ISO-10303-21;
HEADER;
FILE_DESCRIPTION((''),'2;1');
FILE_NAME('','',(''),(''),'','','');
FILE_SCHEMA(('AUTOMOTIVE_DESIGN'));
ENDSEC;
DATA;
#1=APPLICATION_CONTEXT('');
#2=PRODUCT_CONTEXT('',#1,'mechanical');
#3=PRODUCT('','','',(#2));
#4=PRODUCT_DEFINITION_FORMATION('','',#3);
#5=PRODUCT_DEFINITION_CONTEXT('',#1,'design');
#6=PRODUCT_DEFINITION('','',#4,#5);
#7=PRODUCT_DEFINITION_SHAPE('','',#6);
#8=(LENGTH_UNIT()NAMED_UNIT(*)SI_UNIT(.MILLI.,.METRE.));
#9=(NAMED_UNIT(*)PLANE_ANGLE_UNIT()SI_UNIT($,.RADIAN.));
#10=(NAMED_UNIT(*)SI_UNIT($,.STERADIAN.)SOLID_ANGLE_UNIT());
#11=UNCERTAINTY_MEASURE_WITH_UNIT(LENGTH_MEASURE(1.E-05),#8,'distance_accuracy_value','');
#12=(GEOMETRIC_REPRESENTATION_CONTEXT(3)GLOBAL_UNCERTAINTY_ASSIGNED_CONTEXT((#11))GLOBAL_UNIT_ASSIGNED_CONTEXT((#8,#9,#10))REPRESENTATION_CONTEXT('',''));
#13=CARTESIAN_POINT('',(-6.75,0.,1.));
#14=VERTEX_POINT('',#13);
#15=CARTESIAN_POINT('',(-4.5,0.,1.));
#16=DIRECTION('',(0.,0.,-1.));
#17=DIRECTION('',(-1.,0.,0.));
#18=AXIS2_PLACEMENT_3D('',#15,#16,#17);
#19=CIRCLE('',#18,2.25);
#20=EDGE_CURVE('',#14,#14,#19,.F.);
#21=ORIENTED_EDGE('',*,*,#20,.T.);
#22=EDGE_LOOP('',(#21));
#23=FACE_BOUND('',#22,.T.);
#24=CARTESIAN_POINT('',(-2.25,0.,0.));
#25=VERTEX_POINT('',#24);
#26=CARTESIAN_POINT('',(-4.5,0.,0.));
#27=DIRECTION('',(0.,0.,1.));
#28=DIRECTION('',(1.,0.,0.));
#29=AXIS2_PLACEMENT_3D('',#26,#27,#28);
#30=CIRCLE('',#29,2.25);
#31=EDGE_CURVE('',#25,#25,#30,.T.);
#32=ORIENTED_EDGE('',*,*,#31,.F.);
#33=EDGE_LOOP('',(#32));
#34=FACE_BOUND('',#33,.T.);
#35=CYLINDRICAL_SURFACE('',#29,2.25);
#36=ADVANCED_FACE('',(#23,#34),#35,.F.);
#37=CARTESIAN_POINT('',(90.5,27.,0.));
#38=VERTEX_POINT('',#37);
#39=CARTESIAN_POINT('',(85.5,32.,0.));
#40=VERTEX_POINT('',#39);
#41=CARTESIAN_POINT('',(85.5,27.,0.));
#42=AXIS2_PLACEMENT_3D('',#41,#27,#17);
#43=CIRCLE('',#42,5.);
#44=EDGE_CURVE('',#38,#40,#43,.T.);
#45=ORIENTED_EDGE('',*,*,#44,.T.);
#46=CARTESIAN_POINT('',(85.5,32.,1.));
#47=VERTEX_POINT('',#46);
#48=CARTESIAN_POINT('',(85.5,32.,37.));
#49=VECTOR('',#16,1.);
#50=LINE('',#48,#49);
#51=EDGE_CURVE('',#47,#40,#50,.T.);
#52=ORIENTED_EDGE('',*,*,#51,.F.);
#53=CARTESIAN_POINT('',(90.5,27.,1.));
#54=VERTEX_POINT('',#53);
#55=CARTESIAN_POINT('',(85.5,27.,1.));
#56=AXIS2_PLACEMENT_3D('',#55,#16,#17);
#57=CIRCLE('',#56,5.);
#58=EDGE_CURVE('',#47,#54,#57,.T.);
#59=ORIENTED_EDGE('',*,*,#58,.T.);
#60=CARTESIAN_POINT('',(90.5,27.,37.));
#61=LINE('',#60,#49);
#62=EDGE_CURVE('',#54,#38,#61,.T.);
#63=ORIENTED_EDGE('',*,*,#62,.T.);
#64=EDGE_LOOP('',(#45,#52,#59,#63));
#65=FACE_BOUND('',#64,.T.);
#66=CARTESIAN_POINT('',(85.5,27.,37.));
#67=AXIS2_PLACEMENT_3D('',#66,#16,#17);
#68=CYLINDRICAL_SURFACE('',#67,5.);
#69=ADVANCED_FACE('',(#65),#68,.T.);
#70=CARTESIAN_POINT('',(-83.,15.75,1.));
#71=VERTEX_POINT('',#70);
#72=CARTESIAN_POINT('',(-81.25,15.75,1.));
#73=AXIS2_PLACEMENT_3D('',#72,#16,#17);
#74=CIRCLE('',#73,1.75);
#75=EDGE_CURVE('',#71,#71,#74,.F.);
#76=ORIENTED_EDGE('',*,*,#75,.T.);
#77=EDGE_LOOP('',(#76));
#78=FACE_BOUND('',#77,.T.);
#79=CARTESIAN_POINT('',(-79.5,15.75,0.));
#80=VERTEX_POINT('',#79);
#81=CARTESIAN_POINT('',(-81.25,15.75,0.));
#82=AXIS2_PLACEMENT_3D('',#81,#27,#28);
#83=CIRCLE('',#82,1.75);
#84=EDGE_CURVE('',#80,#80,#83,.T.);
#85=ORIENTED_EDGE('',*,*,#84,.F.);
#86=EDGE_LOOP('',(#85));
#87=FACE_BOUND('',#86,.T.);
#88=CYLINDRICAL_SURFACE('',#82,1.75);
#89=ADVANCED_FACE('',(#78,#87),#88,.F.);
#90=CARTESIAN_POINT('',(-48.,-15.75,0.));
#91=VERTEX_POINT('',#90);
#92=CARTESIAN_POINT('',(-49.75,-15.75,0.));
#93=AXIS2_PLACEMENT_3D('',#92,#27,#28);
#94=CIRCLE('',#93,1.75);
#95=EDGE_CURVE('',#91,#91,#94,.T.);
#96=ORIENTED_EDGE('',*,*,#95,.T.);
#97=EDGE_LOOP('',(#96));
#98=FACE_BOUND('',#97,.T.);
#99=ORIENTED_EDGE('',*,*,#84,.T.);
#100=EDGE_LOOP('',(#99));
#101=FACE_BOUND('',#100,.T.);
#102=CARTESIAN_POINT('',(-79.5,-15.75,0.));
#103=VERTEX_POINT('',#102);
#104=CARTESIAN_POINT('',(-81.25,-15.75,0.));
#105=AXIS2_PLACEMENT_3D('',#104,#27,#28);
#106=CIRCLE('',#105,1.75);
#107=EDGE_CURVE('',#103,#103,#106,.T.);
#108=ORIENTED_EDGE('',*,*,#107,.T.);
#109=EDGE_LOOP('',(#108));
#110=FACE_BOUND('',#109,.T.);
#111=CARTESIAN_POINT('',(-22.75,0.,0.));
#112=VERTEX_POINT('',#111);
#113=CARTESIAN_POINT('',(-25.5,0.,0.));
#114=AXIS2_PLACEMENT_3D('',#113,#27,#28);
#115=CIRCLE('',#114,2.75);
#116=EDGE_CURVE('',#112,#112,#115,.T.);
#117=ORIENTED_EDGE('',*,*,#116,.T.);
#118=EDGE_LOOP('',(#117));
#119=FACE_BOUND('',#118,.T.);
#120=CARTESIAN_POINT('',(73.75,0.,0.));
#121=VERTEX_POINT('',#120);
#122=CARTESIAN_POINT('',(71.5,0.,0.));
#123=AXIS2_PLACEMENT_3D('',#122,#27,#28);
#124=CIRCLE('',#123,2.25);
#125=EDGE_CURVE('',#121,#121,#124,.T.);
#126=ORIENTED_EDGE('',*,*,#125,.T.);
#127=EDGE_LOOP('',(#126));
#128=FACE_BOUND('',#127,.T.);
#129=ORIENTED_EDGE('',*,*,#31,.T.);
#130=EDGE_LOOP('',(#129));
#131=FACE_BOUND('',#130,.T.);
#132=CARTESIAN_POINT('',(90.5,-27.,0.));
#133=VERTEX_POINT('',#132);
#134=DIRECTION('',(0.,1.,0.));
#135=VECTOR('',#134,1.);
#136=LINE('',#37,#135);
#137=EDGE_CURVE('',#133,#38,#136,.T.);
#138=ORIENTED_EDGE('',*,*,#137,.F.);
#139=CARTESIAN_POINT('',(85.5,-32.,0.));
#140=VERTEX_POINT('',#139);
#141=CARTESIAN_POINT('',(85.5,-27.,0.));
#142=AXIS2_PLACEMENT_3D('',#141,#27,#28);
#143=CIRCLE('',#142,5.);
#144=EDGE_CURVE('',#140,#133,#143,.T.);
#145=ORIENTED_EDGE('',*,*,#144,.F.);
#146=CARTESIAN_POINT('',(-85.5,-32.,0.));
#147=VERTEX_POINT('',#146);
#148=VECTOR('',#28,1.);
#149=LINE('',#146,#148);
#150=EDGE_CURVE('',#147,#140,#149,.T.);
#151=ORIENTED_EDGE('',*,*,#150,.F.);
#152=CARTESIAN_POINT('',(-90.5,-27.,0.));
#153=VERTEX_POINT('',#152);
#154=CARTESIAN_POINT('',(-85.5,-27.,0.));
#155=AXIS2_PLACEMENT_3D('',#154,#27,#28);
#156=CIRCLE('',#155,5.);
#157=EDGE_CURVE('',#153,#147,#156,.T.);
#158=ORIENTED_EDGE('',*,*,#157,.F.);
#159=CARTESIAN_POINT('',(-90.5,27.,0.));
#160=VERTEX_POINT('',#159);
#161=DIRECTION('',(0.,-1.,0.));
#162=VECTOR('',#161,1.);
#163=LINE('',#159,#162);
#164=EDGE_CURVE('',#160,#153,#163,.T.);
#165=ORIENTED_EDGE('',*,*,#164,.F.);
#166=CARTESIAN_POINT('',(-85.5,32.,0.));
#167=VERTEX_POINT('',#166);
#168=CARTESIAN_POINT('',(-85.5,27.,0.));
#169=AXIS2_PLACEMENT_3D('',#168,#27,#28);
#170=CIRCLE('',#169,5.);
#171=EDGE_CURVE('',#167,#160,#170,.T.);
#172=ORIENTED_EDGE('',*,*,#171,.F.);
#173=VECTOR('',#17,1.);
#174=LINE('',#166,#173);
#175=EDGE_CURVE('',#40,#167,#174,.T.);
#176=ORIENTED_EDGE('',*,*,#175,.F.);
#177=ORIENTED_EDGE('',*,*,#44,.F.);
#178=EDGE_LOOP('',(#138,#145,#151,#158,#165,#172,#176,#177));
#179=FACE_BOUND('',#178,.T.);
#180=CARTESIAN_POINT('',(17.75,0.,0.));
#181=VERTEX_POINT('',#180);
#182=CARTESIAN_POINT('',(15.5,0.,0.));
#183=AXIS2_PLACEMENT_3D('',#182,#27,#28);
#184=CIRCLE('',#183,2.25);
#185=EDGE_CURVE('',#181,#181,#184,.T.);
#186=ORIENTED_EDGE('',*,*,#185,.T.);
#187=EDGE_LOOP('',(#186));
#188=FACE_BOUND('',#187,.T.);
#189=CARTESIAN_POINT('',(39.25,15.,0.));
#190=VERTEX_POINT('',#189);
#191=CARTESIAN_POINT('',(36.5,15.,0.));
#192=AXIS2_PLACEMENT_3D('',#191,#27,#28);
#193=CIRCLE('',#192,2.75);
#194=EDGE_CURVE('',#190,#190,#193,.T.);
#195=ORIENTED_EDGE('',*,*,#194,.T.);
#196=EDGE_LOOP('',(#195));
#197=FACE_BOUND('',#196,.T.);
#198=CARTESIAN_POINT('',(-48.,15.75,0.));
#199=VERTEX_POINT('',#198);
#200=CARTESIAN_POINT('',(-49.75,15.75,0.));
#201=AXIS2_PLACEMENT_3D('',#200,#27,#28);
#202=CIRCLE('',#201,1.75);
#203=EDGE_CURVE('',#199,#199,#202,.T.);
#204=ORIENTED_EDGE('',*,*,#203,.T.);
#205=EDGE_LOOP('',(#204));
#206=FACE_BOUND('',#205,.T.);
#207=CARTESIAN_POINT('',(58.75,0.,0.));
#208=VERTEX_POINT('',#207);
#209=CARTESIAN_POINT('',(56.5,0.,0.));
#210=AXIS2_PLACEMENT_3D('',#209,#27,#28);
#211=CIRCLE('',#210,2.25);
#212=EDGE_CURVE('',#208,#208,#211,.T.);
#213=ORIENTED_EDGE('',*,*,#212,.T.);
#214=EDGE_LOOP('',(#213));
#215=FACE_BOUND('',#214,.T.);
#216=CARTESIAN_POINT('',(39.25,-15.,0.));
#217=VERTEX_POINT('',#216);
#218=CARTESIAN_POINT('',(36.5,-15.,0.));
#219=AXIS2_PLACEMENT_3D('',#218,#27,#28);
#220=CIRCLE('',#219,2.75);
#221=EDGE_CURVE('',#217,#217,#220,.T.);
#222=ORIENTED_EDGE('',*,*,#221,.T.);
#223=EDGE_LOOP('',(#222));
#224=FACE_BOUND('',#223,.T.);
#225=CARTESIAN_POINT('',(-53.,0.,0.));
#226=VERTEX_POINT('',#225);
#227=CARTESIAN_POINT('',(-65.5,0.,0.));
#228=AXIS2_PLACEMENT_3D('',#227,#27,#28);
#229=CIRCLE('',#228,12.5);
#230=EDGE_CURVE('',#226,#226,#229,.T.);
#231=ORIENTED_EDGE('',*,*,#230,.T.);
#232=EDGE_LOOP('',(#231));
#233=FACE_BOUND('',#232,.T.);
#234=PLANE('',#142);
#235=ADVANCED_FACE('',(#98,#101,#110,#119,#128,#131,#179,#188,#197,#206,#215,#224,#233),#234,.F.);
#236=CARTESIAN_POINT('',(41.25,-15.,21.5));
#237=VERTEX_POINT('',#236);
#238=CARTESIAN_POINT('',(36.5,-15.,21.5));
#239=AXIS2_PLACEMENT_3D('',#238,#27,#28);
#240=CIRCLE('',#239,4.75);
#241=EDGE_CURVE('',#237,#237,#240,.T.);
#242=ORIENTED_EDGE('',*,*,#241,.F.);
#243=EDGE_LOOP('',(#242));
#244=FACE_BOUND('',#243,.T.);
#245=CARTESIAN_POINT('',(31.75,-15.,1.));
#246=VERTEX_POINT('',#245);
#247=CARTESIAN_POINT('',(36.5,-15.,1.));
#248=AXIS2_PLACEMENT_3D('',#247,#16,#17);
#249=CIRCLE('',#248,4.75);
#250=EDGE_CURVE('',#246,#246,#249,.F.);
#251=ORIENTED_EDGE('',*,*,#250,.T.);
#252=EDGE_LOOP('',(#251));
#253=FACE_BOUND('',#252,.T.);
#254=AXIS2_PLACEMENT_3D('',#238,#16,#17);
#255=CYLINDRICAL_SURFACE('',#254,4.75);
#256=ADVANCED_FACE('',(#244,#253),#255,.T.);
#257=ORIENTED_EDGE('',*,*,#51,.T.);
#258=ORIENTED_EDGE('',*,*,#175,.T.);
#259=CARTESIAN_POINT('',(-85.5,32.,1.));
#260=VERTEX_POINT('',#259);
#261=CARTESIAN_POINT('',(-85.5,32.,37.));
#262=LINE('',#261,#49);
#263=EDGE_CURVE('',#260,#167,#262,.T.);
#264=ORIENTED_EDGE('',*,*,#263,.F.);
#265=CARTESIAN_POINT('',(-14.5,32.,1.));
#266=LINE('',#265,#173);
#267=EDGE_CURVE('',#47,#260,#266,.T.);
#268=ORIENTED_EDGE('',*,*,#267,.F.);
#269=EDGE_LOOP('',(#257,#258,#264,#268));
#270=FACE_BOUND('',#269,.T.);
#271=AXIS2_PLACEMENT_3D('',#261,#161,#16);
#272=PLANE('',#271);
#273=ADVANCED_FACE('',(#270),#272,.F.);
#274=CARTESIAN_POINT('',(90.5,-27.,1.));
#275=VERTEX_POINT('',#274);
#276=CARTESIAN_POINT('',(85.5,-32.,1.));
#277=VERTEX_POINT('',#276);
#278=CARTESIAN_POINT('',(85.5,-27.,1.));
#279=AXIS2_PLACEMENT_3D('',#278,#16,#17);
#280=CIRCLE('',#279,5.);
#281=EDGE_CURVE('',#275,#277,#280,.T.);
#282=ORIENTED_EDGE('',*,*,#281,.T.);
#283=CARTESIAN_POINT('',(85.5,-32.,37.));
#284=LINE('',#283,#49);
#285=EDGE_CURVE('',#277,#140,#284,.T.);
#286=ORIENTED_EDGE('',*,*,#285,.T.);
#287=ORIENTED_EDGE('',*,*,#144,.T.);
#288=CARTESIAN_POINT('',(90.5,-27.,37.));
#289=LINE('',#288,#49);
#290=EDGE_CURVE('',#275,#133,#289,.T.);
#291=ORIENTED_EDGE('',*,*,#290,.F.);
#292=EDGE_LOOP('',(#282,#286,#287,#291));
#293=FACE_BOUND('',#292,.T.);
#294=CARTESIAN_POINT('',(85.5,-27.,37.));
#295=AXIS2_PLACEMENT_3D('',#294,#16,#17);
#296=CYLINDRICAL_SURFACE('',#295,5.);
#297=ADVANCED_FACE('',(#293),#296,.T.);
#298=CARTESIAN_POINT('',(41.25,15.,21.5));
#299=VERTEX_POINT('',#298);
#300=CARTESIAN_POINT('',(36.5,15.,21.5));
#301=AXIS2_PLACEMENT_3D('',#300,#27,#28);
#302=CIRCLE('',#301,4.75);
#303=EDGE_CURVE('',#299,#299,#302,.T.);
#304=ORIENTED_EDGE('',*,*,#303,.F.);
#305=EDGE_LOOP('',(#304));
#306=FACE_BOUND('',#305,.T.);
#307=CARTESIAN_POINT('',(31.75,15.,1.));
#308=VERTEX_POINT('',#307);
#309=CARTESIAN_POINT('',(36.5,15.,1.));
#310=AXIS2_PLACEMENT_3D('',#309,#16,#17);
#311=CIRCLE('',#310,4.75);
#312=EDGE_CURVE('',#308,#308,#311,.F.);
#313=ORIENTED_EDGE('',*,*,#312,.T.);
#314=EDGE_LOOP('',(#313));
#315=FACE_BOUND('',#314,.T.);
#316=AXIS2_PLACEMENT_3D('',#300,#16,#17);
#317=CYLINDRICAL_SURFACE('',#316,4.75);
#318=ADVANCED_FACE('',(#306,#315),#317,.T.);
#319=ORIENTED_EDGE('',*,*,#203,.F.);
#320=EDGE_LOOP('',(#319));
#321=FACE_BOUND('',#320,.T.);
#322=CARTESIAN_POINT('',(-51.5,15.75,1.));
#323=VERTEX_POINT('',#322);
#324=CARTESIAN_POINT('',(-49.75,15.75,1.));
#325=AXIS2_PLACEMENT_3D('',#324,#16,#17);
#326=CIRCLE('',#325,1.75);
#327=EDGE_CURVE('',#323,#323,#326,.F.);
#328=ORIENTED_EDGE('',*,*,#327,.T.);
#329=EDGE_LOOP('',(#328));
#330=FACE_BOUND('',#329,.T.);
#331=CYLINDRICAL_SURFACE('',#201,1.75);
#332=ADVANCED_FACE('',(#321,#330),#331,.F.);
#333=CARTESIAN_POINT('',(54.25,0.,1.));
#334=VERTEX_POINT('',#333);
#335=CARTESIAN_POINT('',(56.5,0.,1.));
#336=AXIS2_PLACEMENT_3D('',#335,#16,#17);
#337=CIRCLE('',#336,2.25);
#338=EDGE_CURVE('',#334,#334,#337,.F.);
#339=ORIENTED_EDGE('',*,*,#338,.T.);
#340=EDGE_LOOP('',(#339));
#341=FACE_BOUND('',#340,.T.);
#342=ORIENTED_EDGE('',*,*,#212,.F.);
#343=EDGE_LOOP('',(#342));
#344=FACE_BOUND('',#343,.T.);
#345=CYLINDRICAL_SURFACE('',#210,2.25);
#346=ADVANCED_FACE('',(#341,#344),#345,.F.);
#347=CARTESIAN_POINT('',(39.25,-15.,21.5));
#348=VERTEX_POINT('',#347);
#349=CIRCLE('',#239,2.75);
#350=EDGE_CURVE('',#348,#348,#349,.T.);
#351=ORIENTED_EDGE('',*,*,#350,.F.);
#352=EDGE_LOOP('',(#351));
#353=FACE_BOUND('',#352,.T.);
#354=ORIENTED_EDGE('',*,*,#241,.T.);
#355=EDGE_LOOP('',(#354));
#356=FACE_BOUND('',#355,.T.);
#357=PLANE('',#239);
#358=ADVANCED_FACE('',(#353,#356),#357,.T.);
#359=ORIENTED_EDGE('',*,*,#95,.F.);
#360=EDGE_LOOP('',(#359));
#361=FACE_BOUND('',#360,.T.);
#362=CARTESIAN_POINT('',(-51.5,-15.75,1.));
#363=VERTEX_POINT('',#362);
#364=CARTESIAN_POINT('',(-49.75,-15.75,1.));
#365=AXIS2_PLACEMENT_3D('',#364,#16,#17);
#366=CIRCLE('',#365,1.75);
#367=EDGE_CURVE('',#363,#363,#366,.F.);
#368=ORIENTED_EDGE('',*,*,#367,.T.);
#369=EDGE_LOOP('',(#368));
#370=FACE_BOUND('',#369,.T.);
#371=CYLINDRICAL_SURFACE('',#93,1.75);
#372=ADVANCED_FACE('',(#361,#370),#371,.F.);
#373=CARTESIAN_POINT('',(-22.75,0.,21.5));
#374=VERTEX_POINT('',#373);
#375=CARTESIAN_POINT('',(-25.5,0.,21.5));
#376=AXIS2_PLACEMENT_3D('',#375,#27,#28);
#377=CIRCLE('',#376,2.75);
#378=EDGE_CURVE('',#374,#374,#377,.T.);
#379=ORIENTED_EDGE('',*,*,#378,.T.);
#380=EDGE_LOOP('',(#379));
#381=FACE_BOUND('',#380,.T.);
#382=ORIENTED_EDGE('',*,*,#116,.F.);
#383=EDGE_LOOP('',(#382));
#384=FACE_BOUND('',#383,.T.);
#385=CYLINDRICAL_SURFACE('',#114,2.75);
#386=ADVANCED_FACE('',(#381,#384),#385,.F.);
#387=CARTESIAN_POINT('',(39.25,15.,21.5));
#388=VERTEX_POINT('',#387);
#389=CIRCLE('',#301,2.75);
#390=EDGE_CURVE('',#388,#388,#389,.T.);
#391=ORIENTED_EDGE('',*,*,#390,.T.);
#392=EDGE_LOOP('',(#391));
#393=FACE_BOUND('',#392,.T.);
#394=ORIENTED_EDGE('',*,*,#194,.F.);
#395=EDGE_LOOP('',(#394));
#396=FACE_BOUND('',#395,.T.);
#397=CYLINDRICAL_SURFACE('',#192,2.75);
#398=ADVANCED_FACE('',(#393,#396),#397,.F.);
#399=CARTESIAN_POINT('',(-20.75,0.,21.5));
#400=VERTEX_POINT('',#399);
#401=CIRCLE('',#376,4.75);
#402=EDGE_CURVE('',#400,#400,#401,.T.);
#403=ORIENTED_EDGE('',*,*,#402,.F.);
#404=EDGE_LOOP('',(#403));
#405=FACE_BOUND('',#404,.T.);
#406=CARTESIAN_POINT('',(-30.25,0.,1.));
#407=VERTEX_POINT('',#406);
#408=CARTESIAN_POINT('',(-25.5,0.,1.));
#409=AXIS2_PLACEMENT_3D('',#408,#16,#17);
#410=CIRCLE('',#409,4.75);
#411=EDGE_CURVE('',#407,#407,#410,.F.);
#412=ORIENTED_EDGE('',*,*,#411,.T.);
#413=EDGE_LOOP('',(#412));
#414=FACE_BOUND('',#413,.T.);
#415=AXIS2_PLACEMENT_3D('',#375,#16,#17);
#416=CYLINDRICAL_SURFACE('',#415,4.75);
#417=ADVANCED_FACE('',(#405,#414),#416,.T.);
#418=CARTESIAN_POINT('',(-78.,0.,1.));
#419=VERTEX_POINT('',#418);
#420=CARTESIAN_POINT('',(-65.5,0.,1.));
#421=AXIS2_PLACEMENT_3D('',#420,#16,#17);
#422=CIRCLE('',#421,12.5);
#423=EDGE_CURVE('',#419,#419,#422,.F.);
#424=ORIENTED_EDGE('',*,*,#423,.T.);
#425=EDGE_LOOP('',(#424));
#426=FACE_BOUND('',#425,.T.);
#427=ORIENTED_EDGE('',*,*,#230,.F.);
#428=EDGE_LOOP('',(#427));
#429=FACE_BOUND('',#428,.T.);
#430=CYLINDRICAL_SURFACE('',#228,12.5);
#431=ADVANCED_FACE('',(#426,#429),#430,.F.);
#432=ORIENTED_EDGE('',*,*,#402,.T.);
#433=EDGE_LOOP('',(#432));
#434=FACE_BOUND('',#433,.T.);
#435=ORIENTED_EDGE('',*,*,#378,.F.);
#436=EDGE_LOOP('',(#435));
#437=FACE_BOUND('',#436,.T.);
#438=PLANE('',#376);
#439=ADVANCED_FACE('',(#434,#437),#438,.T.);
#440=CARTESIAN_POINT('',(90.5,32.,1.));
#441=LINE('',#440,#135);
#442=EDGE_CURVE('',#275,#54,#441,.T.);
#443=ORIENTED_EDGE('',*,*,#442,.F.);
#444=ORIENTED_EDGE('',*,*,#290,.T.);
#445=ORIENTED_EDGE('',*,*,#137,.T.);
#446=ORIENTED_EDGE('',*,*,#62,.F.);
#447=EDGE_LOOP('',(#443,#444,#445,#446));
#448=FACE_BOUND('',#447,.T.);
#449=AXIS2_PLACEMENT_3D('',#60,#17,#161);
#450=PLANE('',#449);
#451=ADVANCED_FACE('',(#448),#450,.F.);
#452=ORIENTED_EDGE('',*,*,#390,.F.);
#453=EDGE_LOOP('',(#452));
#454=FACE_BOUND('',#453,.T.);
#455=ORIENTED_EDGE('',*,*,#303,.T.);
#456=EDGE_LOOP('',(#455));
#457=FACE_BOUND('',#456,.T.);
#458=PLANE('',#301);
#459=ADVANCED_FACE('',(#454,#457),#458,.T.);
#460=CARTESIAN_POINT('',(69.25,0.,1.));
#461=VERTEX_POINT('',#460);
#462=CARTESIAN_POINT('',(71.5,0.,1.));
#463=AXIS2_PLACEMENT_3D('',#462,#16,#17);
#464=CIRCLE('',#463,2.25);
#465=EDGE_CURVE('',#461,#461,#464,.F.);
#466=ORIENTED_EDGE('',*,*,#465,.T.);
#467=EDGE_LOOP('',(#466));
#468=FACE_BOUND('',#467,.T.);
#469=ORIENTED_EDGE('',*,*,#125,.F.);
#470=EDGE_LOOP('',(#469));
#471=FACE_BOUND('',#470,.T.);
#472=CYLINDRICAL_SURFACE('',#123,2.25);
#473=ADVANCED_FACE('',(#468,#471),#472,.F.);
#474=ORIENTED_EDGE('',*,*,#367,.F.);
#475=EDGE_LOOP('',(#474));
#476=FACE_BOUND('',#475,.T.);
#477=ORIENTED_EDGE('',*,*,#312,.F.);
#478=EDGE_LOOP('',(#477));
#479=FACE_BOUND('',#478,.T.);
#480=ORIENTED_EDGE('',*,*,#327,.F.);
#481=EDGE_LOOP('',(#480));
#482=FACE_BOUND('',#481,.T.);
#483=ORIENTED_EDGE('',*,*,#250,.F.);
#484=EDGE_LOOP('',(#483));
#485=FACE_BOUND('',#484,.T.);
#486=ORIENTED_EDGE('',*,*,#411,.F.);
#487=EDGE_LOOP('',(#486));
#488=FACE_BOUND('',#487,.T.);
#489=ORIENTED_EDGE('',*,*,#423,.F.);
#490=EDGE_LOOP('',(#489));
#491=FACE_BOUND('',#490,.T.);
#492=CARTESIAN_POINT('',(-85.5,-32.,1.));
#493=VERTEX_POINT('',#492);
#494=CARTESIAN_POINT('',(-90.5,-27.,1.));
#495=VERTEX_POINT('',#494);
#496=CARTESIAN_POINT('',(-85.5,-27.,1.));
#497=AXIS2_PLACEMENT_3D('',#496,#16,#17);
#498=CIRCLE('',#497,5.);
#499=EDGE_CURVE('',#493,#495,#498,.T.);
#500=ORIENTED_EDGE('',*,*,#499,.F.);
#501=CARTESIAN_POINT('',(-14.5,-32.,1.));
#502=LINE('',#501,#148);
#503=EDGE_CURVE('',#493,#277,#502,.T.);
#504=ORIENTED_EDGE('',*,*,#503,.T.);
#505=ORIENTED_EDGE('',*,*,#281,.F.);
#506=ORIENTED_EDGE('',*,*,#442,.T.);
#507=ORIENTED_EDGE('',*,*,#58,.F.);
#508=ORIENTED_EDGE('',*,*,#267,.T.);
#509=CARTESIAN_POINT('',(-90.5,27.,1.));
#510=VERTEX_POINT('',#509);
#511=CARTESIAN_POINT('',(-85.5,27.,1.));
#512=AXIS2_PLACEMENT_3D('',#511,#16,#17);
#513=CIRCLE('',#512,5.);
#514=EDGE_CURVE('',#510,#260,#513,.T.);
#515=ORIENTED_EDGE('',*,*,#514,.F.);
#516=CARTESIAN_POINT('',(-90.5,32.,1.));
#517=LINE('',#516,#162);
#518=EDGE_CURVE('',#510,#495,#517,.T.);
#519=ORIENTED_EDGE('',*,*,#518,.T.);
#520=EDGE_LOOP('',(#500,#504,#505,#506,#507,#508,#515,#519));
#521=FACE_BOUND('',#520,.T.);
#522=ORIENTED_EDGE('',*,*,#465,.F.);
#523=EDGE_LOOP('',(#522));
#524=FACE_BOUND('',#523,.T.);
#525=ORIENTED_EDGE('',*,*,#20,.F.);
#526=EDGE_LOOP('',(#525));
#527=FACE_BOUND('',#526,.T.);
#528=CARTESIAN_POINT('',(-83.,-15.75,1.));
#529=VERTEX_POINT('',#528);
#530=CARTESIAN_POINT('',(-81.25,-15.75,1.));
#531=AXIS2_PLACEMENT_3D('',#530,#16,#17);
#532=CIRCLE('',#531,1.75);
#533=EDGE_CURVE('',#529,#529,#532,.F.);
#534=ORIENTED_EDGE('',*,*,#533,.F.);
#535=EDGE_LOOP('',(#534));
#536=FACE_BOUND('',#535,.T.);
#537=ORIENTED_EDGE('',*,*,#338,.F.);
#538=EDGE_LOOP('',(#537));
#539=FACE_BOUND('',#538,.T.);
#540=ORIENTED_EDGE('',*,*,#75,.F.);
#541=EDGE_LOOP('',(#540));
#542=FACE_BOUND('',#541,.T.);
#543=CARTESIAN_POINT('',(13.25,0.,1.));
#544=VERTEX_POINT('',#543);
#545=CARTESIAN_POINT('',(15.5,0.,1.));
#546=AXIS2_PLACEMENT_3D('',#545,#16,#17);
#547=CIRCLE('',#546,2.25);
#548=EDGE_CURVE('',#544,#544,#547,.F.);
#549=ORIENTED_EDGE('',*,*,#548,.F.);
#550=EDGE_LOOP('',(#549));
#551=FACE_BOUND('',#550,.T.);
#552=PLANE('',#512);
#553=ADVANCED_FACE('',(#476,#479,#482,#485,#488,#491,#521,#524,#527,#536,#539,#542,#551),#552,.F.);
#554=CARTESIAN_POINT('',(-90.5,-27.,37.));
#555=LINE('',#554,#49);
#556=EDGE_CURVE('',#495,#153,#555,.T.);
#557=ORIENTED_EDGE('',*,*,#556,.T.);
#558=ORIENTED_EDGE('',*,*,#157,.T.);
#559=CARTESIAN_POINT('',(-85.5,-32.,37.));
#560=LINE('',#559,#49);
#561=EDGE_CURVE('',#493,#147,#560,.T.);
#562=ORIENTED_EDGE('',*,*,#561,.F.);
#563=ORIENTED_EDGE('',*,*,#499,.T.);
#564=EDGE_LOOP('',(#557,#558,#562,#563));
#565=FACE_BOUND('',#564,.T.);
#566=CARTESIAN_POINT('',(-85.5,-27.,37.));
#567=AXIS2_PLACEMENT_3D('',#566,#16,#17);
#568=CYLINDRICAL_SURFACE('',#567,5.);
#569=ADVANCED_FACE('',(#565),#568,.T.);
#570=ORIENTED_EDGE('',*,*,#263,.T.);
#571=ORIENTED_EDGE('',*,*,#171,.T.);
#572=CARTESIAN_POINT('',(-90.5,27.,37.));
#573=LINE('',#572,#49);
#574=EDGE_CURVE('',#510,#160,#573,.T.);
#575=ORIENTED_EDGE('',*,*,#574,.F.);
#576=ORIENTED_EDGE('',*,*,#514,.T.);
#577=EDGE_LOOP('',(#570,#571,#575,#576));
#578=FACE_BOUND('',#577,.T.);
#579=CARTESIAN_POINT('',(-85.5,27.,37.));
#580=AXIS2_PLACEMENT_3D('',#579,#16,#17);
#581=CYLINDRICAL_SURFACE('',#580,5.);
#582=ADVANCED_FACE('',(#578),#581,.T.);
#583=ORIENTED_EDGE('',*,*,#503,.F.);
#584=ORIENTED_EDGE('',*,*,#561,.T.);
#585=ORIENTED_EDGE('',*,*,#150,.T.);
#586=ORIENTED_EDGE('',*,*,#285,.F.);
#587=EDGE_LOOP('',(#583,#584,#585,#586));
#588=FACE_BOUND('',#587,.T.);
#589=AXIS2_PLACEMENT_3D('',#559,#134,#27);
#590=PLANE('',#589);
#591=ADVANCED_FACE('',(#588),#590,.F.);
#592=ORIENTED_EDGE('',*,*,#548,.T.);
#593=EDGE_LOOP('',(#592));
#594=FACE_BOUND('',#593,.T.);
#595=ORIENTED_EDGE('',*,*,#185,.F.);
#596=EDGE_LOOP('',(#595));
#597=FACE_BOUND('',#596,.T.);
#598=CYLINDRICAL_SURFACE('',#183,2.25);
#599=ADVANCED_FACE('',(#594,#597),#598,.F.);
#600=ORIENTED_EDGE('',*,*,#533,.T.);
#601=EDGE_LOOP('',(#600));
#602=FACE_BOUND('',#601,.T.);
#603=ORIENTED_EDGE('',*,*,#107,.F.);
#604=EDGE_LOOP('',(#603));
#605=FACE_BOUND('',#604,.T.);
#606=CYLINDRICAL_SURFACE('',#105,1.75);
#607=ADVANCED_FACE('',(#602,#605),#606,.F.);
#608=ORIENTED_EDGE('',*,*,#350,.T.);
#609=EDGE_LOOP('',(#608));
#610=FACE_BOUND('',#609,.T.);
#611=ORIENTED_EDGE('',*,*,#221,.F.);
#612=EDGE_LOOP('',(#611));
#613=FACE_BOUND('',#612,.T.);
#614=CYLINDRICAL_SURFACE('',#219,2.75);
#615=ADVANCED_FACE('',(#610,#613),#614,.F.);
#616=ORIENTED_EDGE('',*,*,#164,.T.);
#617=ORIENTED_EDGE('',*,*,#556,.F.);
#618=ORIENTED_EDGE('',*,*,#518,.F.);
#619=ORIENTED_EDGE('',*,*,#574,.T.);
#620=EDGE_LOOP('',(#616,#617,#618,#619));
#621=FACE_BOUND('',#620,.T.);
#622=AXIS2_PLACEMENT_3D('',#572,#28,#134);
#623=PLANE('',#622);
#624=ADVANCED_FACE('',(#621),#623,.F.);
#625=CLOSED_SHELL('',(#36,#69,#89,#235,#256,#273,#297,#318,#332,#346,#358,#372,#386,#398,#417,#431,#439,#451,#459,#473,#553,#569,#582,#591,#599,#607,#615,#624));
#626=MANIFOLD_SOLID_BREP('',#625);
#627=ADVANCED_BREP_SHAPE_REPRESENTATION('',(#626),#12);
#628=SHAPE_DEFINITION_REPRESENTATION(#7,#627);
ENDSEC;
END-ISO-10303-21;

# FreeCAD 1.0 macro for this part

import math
import FreeCAD as App
import Part
import Sketcher

V = App.Vector
Q = App.Units.Quantity


def add_polygon(sketch, points):
    """Adds a closed chain of lines whose ends are joined by coincident constraints."""
    first, n = sketch.GeometryCount, len(points)
    for a, b in zip(points, points[1:] + points[:1]):
        sketch.addGeometry(Part.LineSegment(App.Vector(*a, 0), App.Vector(*b, 0)), False)
    for i in range(n):
        sketch.addConstraint(Sketcher.Constraint("Coincident", first + i, 2, first + (i + 1) % n, 1))

doc = App.newDocument("Part")
body = doc.addObject("PartDesign::Body", "Body")

# Sketch on XY plane
sketch1 = body.newObject("Sketcher::SketchObject", "Sketch")
sketch1.AttachmentSupport = (doc.getObject("XY_Plane"), [""])
sketch1.MapMode = "FlatFace"
sketch1.addGeometry([
    Part.LineSegment(V(86, 32, 0), V(-86, 32, 0)),  # 0
    Part.ArcOfCircle(Part.Circle(V(-86, 27, 0), V(0, 0, 1), 5), math.radians(90), math.radians(180)),  # 1
    Part.LineSegment(V(-90, 27, 0), V(-90, -27, 0)),  # 2
    Part.ArcOfCircle(Part.Circle(V(-86, -27, 0), V(0, 0, 1), 5), math.radians(180), math.radians(270)),  # 3
    Part.LineSegment(V(-86, -32, 0), V(86, -32, 0)),  # 4
    Part.ArcOfCircle(Part.Circle(V(86, -27, 0), V(0, 0, 1), 5), math.radians(-90), math.radians(0)),  # 5
    Part.LineSegment(V(90, -27, 0), V(90, 27, 0)),  # 6
    Part.ArcOfCircle(Part.Circle(V(86, 27, 0), V(0, 0, 1), 5), math.radians(0), math.radians(90)),  # 7
], False)
sketch1.addConstraint([
    Sketcher.Constraint("Tangent", 0, 2, 1, 1),
    Sketcher.Constraint("Tangent", 1, 2, 2, 1),
    Sketcher.Constraint("Tangent", 2, 2, 3, 1),
    Sketcher.Constraint("Tangent", 3, 2, 4, 1),
    Sketcher.Constraint("Tangent", 4, 2, 5, 1),
    Sketcher.Constraint("Tangent", 5, 2, 6, 1),
    Sketcher.Constraint("Tangent", 6, 2, 7, 1),
    Sketcher.Constraint("Tangent", 7, 2, 0, 1),
    Sketcher.Constraint("Horizontal", 0),
    Sketcher.Constraint("Vertical", 2),
    Sketcher.Constraint("Horizontal", 4),
    Sketcher.Constraint("Vertical", 6),
    Sketcher.Constraint("Equal", 1, 3),
    Sketcher.Constraint("Equal", 3, 5),
    Sketcher.Constraint("Equal", 5, 7),
    Sketcher.Constraint("Symmetric", 1, 3, 5, 3, -1, 1),
    Sketcher.Constraint("Radius", 1, Q("5 mm")),
    Sketcher.Constraint("DistanceX", 0, 2, 0, 1, Q("171 mm")),
    Sketcher.Constraint("DistanceY", 2, 2, 2, 1, Q("54 mm")),
])
pad1 = body.newObject("PartDesign::Pad", "Pad")
pad1.Profile = sketch1
pad1.Length = 37

# Sketch on XY plane
sketch2 = body.newObject("Sketcher::SketchObject", "Sketch001")
sketch2.AttachmentSupport = (doc.getObject("XY_Plane"), [""])
sketch2.MapMode = "FlatFace"
sketch2.AttachmentOffset = App.Placement(V(0, 0, 37), App.Rotation())
sketch2.addGeometry([
    Part.Circle(V(-81.2, 15.8, 0), V(0, 0, 1), 1.8),  # 0
    Part.Circle(V(-49.8, 15.8, 0), V(0, 0, 1), 1.8),  # 1
    Part.Circle(V(-81.2, -15.8, 0), V(0, 0, 1), 1.8),  # 2
    Part.Circle(V(-49.8, -15.8, 0), V(0, 0, 1), 1.8),  # 3
    Part.Circle(V(-65.5, 0, 0), V(0, 0, 1), 12.5),  # 4
    Part.Circle(V(36.5, 15, 0), V(0, 0, 1), 2.8),  # 5
    Part.Circle(V(36.5, -15, 0), V(0, 0, 1), 2.8),  # 6
    Part.Circle(V(-25.5, 0, 0), V(0, 0, 1), 2.8),  # 7
    Part.Circle(V(56.5, 0, 0), V(0, 0, 1), 2.2),  # 8
    Part.Circle(V(71.5, 0, 0), V(0, 0, 1), 2.2),  # 9
], False)
sketch2.addConstraint([
    Sketcher.Constraint("Equal", 0, 1),
    Sketcher.Constraint("Equal", 1, 2),
    Sketcher.Constraint("Equal", 2, 3),
    Sketcher.Constraint("Equal", 5, 6),
    Sketcher.Constraint("Equal", 6, 7),
    Sketcher.Constraint("Equal", 8, 9),
    Sketcher.Constraint("Symmetric", 0, 3, 2, 3, -1),
    Sketcher.Constraint("Symmetric", 1, 3, 3, 3, -1),
    Sketcher.Constraint("Symmetric", 5, 3, 6, 3, -1),
    Sketcher.Constraint("PointOnObject", 4, 3, -1),
    Sketcher.Constraint("PointOnObject", 7, 3, -1),
    Sketcher.Constraint("PointOnObject", 8, 3, -1),
    Sketcher.Constraint("PointOnObject", 9, 3, -1),
    Sketcher.Constraint("Horizontal", 0, 3, 1, 3),
    Sketcher.Constraint("Diameter", 4, Q("25 mm")),
    Sketcher.Constraint("Diameter", 0, Q("3.5 mm")),
    Sketcher.Constraint("Diameter", 5, Q("5.5 mm")),
    Sketcher.Constraint("Diameter", 8, Q("4.5 mm")),
    Sketcher.Constraint("DistanceY", -1, 1, 5, 3, Q("15 mm")),
    Sketcher.Constraint("DistanceX", 4, 3, 5, 3, Q("102 mm")),
    Sketcher.Constraint("DistanceX", 4, 3, 7, 3, Q("40 mm")),
    Sketcher.Constraint("DistanceX", 5, 3, 8, 3, Q("20 mm")),
    Sketcher.Constraint("DistanceX", 8, 3, 9, 3, Q("15 mm")),
    Sketcher.Constraint("DistanceX", 4, 3, -1, 1, Q("65.5 mm")),
    Sketcher.Constraint("DistanceX", 0, 3, 1, 3, Q("31.5 mm")),
    Sketcher.Constraint("DistanceY", 2, 3, 0, 3, Q("31.5 mm")),
    Sketcher.Constraint("DistanceX", 0, 3, -1, 1, Q("81.25 mm")),
])
pocket1 = body.newObject("PartDesign::Pocket", "Pocket")
pocket1.Profile = sketch2
pocket1.Type = "ThroughAll"

# Sketch on XY plane
sketch3 = body.newObject("Sketcher::SketchObject", "Sketch002")
sketch3.AttachmentSupport = (doc.getObject("XY_Plane"), [""])
sketch3.MapMode = "FlatFace"
sketch3.AttachmentOffset = App.Placement(V(0, 0, 37), App.Rotation())
sketch3.addGeometry([
    Part.Circle(V(-4.5, 0, 0), V(0, 0, 1), 2.2),
    Part.Circle(V(15.5, 0, 0), V(0, 0, 1), 2.2),
], False)
sketch3.addConstraint([
    Sketcher.Constraint("Equal", 0, 1),
    Sketcher.Constraint("PointOnObject", 0, 3, -1),
    Sketcher.Constraint("PointOnObject", 1, 3, -1),
    Sketcher.Constraint("Diameter", 0, Q("4.5 mm")),
    Sketcher.Constraint("DistanceX", 0, 3, 1, 3, Q("20 mm")),
    Sketcher.Constraint("DistanceX", 0, 3, -1, 1, Q("4.5 mm")),
])
pocket2 = body.newObject("PartDesign::Pocket", "Pocket001")
pocket2.Profile = sketch3
pocket2.Type = "ThroughAll"

# Sketch on XY plane
sketch4 = body.newObject("Sketcher::SketchObject", "Sketch003")
sketch4.AttachmentSupport = (doc.getObject("XY_Plane"), [""])
sketch4.MapMode = "FlatFace"
sketch4.AttachmentOffset = App.Placement(V(0, 0, 37), App.Rotation())
sketch4.addGeometry([
    Part.LineSegment(V(-85.5, -29, 0), V(85.5, -29, 0)),  # 0
    Part.ArcOfCircle(Part.Circle(V(85.5, -27, 0), V(0, 0, 1), 2), math.radians(-90), math.radians(0)),  # 1
    Part.LineSegment(V(87.5, -27, 0), V(87.5, 27, 0)),  # 2
    Part.ArcOfCircle(Part.Circle(V(85.5, 27, 0), V(0, 0, 1), 2), math.radians(0), math.radians(90)),  # 3
    Part.LineSegment(V(85.5, 29, 0), V(-85.5, 29, 0)),  # 4
    Part.ArcOfCircle(Part.Circle(V(-85.5, 27, 0), V(0, 0, 1), 2), math.radians(90), math.radians(180)),  # 5
    Part.LineSegment(V(-87.5, 27, 0), V(-87.5, -27, 0)),  # 6
    Part.ArcOfCircle(Part.Circle(V(-85.5, -27, 0), V(0, 0, 1), 2), math.radians(-180), math.radians(-90)),  # 7
], False)
sketch4.addConstraint([
    Sketcher.Constraint("Tangent", 0, 2, 1, 1),
    Sketcher.Constraint("Tangent", 1, 2, 2, 1),
    Sketcher.Constraint("Tangent", 2, 2, 3, 1),
    Sketcher.Constraint("Tangent", 3, 2, 4, 1),
    Sketcher.Constraint("Tangent", 4, 2, 5, 1),
    Sketcher.Constraint("Tangent", 5, 2, 6, 1),
    Sketcher.Constraint("Tangent", 6, 2, 7, 1),
    Sketcher.Constraint("Tangent", 7, 2, 0, 1),
    Sketcher.Constraint("Horizontal", 0),
    Sketcher.Constraint("Vertical", 2),
    Sketcher.Constraint("Horizontal", 4),
    Sketcher.Constraint("Vertical", 6),
    Sketcher.Constraint("Equal", 1, 3),
    Sketcher.Constraint("Equal", 3, 5),
    Sketcher.Constraint("Equal", 5, 7),
    Sketcher.Constraint("Symmetric", 1, 3, 5, 3, -1, 1),
    Sketcher.Constraint("Radius", 1, Q("2 mm")),
    Sketcher.Constraint("DistanceX", 0, 1, 0, 2, Q("171 mm")),
    Sketcher.Constraint("DistanceY", 2, 1, 2, 2, Q("54 mm")),
])
pocket3 = body.newObject("PartDesign::Pocket", "Pocket002")
pocket3.Profile = sketch4
pocket3.Length = 36

# Sketch on XY plane
sketch5 = body.newObject("Sketcher::SketchObject", "Sketch004")
sketch5.AttachmentSupport = (doc.getObject("XY_Plane"), [""])
sketch5.MapMode = "FlatFace"
sketch5.AttachmentOffset = App.Placement(V(0, 0, 1), App.Rotation())
sketch5.addGeometry([
    Part.Circle(V(-25.5, 0, 0), V(0, 0, 1), 4.8),
    Part.Circle(V(36.5, -15, 0), V(0, 0, 1), 4.8),
    Part.Circle(V(36.5, 15, 0), V(0, 0, 1), 4.8),
], False)
sketch5.addConstraint([
    Sketcher.Constraint("Equal", 0, 1),
    Sketcher.Constraint("Equal", 1, 2),
    Sketcher.Constraint("Symmetric", 1, 3, 2, 3, -1),
    Sketcher.Constraint("PointOnObject", 0, 3, -1),
    Sketcher.Constraint("Diameter", 0, Q("9.5 mm")),
    Sketcher.Constraint("DistanceY", 1, 3, -1, 1, Q("15 mm")),
    Sketcher.Constraint("DistanceX", 0, 3, 1, 3, Q("62 mm")),
    Sketcher.Constraint("DistanceX", 0, 3, -1, 1, Q("25.5 mm")),
])
pad2 = body.newObject("PartDesign::Pad", "Pad001")
pad2.Profile = sketch5
pad2.Length = 20.5

# Sketch on XY plane
sketch6 = body.newObject("Sketcher::SketchObject", "Sketch005")
sketch6.AttachmentSupport = (doc.getObject("XY_Plane"), [""])
sketch6.MapMode = "FlatFace"
sketch6.AttachmentOffset = App.Placement(V(0, 0, 37), App.Rotation())
add_polygon(sketch6, [(-14, 32), (-14, -32), (26, -32), (26, 32)])  # lines 0-3
sketch6.addConstraint([
    Sketcher.Constraint("Vertical", 0),
    Sketcher.Constraint("Horizontal", 1),
    Sketcher.Constraint("Vertical", 2),
    Sketcher.Constraint("Horizontal", 3),
    Sketcher.Constraint("DistanceX", 1, 1, 1, 2, Q("40 mm")),
    Sketcher.Constraint("DistanceY", 0, 2, 0, 1, Q("64 mm")),
    Sketcher.Constraint("DistanceY", 0, 2, -1, 1, Q("32 mm")),
    Sketcher.Constraint("DistanceX", 0, 2, -1, 1, Q("14.5 mm")),
])
pocket4 = body.newObject("PartDesign::Pocket", "Pocket003")
pocket4.Profile = sketch6
pocket4.Length = 36

# Sketch on XY plane
sketch7 = body.newObject("Sketcher::SketchObject", "Sketch006")
sketch7.AttachmentSupport = (doc.getObject("XY_Plane"), [""])
sketch7.MapMode = "FlatFace"
sketch7.AttachmentOffset = App.Placement(V(0, 0, 21.5), App.Rotation())
sketch7.addGeometry([
    Part.Circle(V(36.5, -15, 0), V(0, 0, 1), 2.8),
    Part.Circle(V(-25.5, 0, 0), V(0, 0, 1), 2.8),
    Part.Circle(V(36.5, 15, 0), V(0, 0, 1), 2.8),
], False)
sketch7.addConstraint([
    Sketcher.Constraint("Equal", 0, 1),
    Sketcher.Constraint("Equal", 1, 2),
    Sketcher.Constraint("Symmetric", 0, 3, 2, 3, -1),
    Sketcher.Constraint("PointOnObject", 1, 3, -1),
    Sketcher.Constraint("Diameter", 0, Q("5.5 mm")),
    Sketcher.Constraint("DistanceY", 0, 3, -1, 1, Q("15 mm")),
    Sketcher.Constraint("DistanceX", 1, 3, 0, 3, Q("62 mm")),
    Sketcher.Constraint("DistanceX", -1, 1, 0, 3, Q("36.5 mm")),
])
pocket5 = body.newObject("PartDesign::Pocket", "Pocket004")
pocket5.Profile = sketch7
pocket5.Type = "ThroughAll"

# Sketch on XY plane
sketch8 = body.newObject("Sketcher::SketchObject", "Sketch007")
sketch8.AttachmentSupport = (doc.getObject("XY_Plane"), [""])
sketch8.MapMode = "FlatFace"
sketch8.AttachmentOffset = App.Placement(V(0, 0, 1), App.Rotation())
add_polygon(sketch8, [(68, -19), (68, -29), (82, -29), (82, -19)])  # lines 0-3
add_polygon(sketch8, [(68, 29), (68, 19), (82, 19), (82, 29)])  # lines 4-7
add_polygon(sketch8, [(68, -6), (68, -16), (88, -16), (88, -6)])  # lines 8-11
add_polygon(sketch8, [(68, 16), (68, 6), (88, 6), (88, 16)])  # lines 12-15
add_polygon(sketch8, [(-42, -19), (-42, -29), (-32, -29), (-32, -19)])  # lines 16-19
add_polygon(sketch8, [(-42, 29), (-42, 19), (-32, 19), (-32, 29)])  # lines 20-23
sketch8.addConstraint([
    Sketcher.Constraint("Vertical", 0),
    Sketcher.Constraint("Horizontal", 1),
    Sketcher.Constraint("Vertical", 2),
    Sketcher.Constraint("Horizontal", 3),
    Sketcher.Constraint("Vertical", 4),
    Sketcher.Constraint("Horizontal", 5),
    Sketcher.Constraint("Vertical", 6),
    Sketcher.Constraint("Horizontal", 7),
    Sketcher.Constraint("Vertical", 8),
    Sketcher.Constraint("Horizontal", 9),
    Sketcher.Constraint("Vertical", 10),
    Sketcher.Constraint("Horizontal", 11),
    Sketcher.Constraint("Vertical", 12),
    Sketcher.Constraint("Horizontal", 13),
    Sketcher.Constraint("Vertical", 14),
    Sketcher.Constraint("Horizontal", 15),
    Sketcher.Constraint("Vertical", 16),
    Sketcher.Constraint("Horizontal", 17),
    Sketcher.Constraint("Vertical", 18),
    Sketcher.Constraint("Horizontal", 19),
    Sketcher.Constraint("Vertical", 20),
    Sketcher.Constraint("Horizontal", 21),
    Sketcher.Constraint("Vertical", 22),
    Sketcher.Constraint("Horizontal", 23),
    Sketcher.Constraint("Symmetric", 3, 2, 4, 2, -1),
    Sketcher.Constraint("Symmetric", 1, 2, 6, 2, -1),
    Sketcher.Constraint("Symmetric", 11, 2, 12, 2, -1),
    Sketcher.Constraint("Symmetric", 9, 2, 14, 2, -1),
    Sketcher.Constraint("Symmetric", 19, 2, 20, 2, -1),
    Sketcher.Constraint("Symmetric", 17, 2, 22, 2, -1),
    Sketcher.Constraint("Horizontal", 1, 2, 16, 2),
    Sketcher.Constraint("Horizontal", 3, 2, 18, 2),
    Sketcher.Constraint("Vertical", 7, 2, 8, 2),
    Sketcher.Constraint("Equal", 23, 0),
    Sketcher.Constraint("Equal", 6, 8),
    Sketcher.Constraint("DistanceX", 1, 1, 1, 2, Q("15 mm")),
    Sketcher.Constraint("DistanceX", 9, 1, 9, 2, Q("20 mm")),
    Sketcher.Constraint("DistanceX", 17, 1, 17, 2, Q("10 mm")),
    Sketcher.Constraint("DistanceY", 0, 2, -1, 1, Q("29 mm")),
    Sketcher.Constraint("DistanceY", 8, 2, -1, 1, Q("16 mm")),
    Sketcher.Constraint("DistanceX", 16, 2, 0, 2, Q("110 mm")),
    Sketcher.Constraint("DistanceX", -1, 1, 0, 2, Q("67.5 mm")),
])
pad3 = body.newObject("PartDesign::Pad", "Pad002")
pad3.Profile = sketch8
pad3.Length = 36

# Sketch on XZ plane
sketch9 = body.newObject("Sketcher::SketchObject", "Sketch008")
sketch9.AttachmentSupport = (doc.getObject("XZ_Plane"), [""])
sketch9.MapMode = "FlatFace"
sketch9.AttachmentOffset = App.Placement(V(0, 0, 16), App.Rotation())
add_polygon(sketch9, [(88, 37), (68, 37), (68, 3)])  # lines 0-2
sketch9.addConstraint([
    Sketcher.Constraint("Horizontal", 0),
    Sketcher.Constraint("Vertical", 1),
    Sketcher.Constraint("DistanceX", 0, 2, 0, 1, Q("20 mm")),
    Sketcher.Constraint("DistanceY", 1, 2, 1, 1, Q("34 mm")),
    Sketcher.Constraint("DistanceY", -1, 1, 0, 2, Q("37 mm")),
    Sketcher.Constraint("DistanceX", -1, 1, 0, 2, Q("67.5 mm")),
])
pocket6 = body.newObject("PartDesign::Pocket", "Pocket005")
pocket6.Profile = sketch9
pocket6.Length = 33

# Sketch on YZ plane
sketch10 = body.newObject("Sketcher::SketchObject", "Sketch009")
sketch10.AttachmentSupport = (doc.getObject("YZ_Plane"), [""])
sketch10.MapMode = "FlatFace"
sketch10.AttachmentOffset = App.Placement(V(0, 0, 82.5), App.Rotation())
add_polygon(sketch10, [(-19, 3), (-19, 37), (-29, 37)])  # lines 0-2
sketch10.addConstraint([
    Sketcher.Constraint("Vertical", 0),
    Sketcher.Constraint("Horizontal", 1),
    Sketcher.Constraint("DistanceX", 1, 2, 1, 1, Q("10 mm")),
    Sketcher.Constraint("DistanceY", 0, 1, 0, 2, Q("34 mm")),
    Sketcher.Constraint("DistanceX", 0, 2, -1, 1, Q("19 mm")),
    Sketcher.Constraint("DistanceY", -1, 1, 0, 2, Q("37 mm")),
])
pocket7 = body.newObject("PartDesign::Pocket", "Pocket006")
pocket7.Profile = sketch10
pocket7.Length = 15

# Sketch on YZ plane
sketch11 = body.newObject("Sketcher::SketchObject", "Sketch010")
sketch11.AttachmentSupport = (doc.getObject("YZ_Plane"), [""])
sketch11.MapMode = "FlatFace"
sketch11.AttachmentOffset = App.Placement(V(0, 0, 67.5), App.Rotation())
add_polygon(sketch11, [(19, 1), (19, 37), (29, 37)])  # lines 0-2
sketch11.addConstraint([
    Sketcher.Constraint("Vertical", 0),
    Sketcher.Constraint("Horizontal", 1),
    Sketcher.Constraint("DistanceX", 1, 1, 1, 2, Q("10 mm")),
    Sketcher.Constraint("DistanceY", 0, 1, 0, 2, Q("36 mm")),
    Sketcher.Constraint("DistanceX", -1, 1, 0, 2, Q("19 mm")),
    Sketcher.Constraint("DistanceY", -1, 1, 0, 2, Q("37 mm")),
])
pocket8 = body.newObject("PartDesign::Pocket", "Pocket007")
pocket8.Profile = sketch11
pocket8.Length = 15
pocket8.Reversed = True

# Sketch on YZ plane
sketch12 = body.newObject("Sketcher::SketchObject", "Sketch011")
sketch12.AttachmentSupport = (doc.getObject("YZ_Plane"), [""])
sketch12.MapMode = "FlatFace"
sketch12.AttachmentOffset = App.Placement(V(0, 0, -32.5), App.Rotation())
add_polygon(sketch12, [(-19, 37), (-29, 37), (-19, 1)])  # lines 0-2
sketch12.addConstraint([
    Sketcher.Constraint("Horizontal", 0),
    Sketcher.Constraint("Vertical", 2),
    Sketcher.Constraint("DistanceX", 0, 2, 0, 1, Q("10 mm")),
    Sketcher.Constraint("DistanceY", 2, 1, 2, 2, Q("36 mm")),
    Sketcher.Constraint("DistanceX", 0, 2, -1, 1, Q("29 mm")),
    Sketcher.Constraint("DistanceY", -1, 1, 0, 2, Q("37 mm")),
])
pocket9 = body.newObject("PartDesign::Pocket", "Pocket008")
pocket9.Profile = sketch12
pocket9.Length = 10

# Sketch on YZ plane
sketch13 = body.newObject("Sketcher::SketchObject", "Sketch012")
sketch13.AttachmentSupport = (doc.getObject("YZ_Plane"), [""])
sketch13.MapMode = "FlatFace"
sketch13.AttachmentOffset = App.Placement(V(0, 0, -32.5), App.Rotation())
add_polygon(sketch13, [(19, 1), (29, 37), (19, 37)])  # lines 0-2
sketch13.addConstraint([
    Sketcher.Constraint("Horizontal", 1),
    Sketcher.Constraint("Vertical", 2),
    Sketcher.Constraint("DistanceX", 1, 2, 1, 1, Q("10 mm")),
    Sketcher.Constraint("DistanceY", 2, 2, 2, 1, Q("36 mm")),
    Sketcher.Constraint("DistanceX", -1, 1, 0, 2, Q("29 mm")),
    Sketcher.Constraint("DistanceY", -1, 1, 0, 2, Q("37 mm")),
])
pocket10 = body.newObject("PartDesign::Pocket", "Pocket009")
pocket10.Profile = sketch13
pocket10.Length = 10

# Sketch on YZ plane
sketch14 = body.newObject("Sketcher::SketchObject", "Sketch013")
sketch14.AttachmentSupport = (doc.getObject("YZ_Plane"), [""])
sketch14.MapMode = "FlatFace"
sketch14.AttachmentOffset = App.Placement(V(0, 0, -90.5), App.Rotation())
add_polygon(sketch14, [(8, 27), (-8, 27), (-8, 33), (8, 33)])  # lines 0-3
sketch14.addConstraint([
    Sketcher.Constraint("Horizontal", 0),
    Sketcher.Constraint("Vertical", 1),
    Sketcher.Constraint("Horizontal", 2),
    Sketcher.Constraint("Vertical", 3),
    Sketcher.Constraint("DistanceX", 0, 2, 0, 1, Q("15 mm")),
    Sketcher.Constraint("DistanceY", 1, 1, 1, 2, Q("6 mm")),
    Sketcher.Constraint("DistanceY", -1, 1, 0, 2, Q("27 mm")),
    Sketcher.Constraint("DistanceX", 0, 2, -1, 1, Q("7.5 mm")),
])
pocket11 = body.newObject("PartDesign::Pocket", "Pocket010")
pocket11.Profile = sketch14
pocket11.Length = 3
pocket11.Reversed = True

# Sketch on XY plane
sketch15 = body.newObject("Sketcher::SketchObject", "Sketch014")
sketch15.AttachmentSupport = (doc.getObject("XY_Plane"), [""])
sketch15.MapMode = "FlatFace"
sketch15.AttachmentOffset = App.Placement(V(0, 0, 37), App.Rotation())
add_polygon(sketch15, [(-90, 32), (-90, -32), (-14, -32), (-14, 32)])  # lines 0-3
add_polygon(sketch15, [(-21, -5), (-30, -5), (-30, 5), (-21, 5)])  # lines 4-7
add_polygon(sketch15, [(26, 32), (26, -32), (90, -32), (90, 32)])  # lines 8-11
add_polygon(sketch15, [(41, -20), (32, -20), (32, -10), (41, -10)])  # lines 12-15
add_polygon(sketch15, [(41, 10), (32, 10), (32, 20), (41, 20)])  # lines 16-19
sketch15.addConstraint([
    Sketcher.Constraint("Vertical", 0),
    Sketcher.Constraint("Horizontal", 1),
    Sketcher.Constraint("Vertical", 2),
    Sketcher.Constraint("Horizontal", 3),
    Sketcher.Constraint("Horizontal", 4),
    Sketcher.Constraint("Vertical", 5),
    Sketcher.Constraint("Horizontal", 6),
    Sketcher.Constraint("Vertical", 7),
    Sketcher.Constraint("Vertical", 8),
    Sketcher.Constraint("Horizontal", 9),
    Sketcher.Constraint("Vertical", 10),
    Sketcher.Constraint("Horizontal", 11),
    Sketcher.Constraint("Horizontal", 12),
    Sketcher.Constraint("Vertical", 13),
    Sketcher.Constraint("Horizontal", 14),
    Sketcher.Constraint("Vertical", 15),
    Sketcher.Constraint("Horizontal", 16),
    Sketcher.Constraint("Vertical", 17),
    Sketcher.Constraint("Horizontal", 18),
    Sketcher.Constraint("Vertical", 19),
    Sketcher.Constraint("Symmetric", 3, 2, 9, 2, -1, 1),
    Sketcher.Constraint("Symmetric", 13, 2, 16, 2, -1),
    Sketcher.Constraint("Symmetric", 15, 2, 18, 2, -1),
    Sketcher.Constraint("Horizontal", 1, 2, 8, 2),
    Sketcher.Constraint("Horizontal", 3, 2, 10, 2),
    Sketcher.Constraint("Equal", 6, 12),
    Sketcher.Constraint("Equal", 18, 5),
    Sketcher.Constraint("Equal", 7, 13),
    Sketcher.Constraint("DistanceX", 1, 1, 1, 2, Q("76 mm")),
    Sketcher.Constraint("DistanceX", 9, 1, 9, 2, Q("65 mm")),
    Sketcher.Constraint("DistanceY", 0, 2, 0, 1, Q("64 mm")),
    Sketcher.Constraint("DistanceX", 4, 2, 4, 1, Q("9.5 mm")),
    Sketcher.Constraint("DistanceX", 1, 2, 8, 2, Q("40 mm")),
    Sketcher.Constraint("DistanceY", 12, 2, 7, 2, Q("15 mm")),
    Sketcher.Constraint("DistanceY", 12, 2, 16, 2, Q("30 mm")),
    Sketcher.Constraint("DistanceX", 7, 2, 12, 2, Q("52.5 mm")),
    Sketcher.Constraint("DistanceX", 4, 2, -1, 1, Q("30.25 mm")),
])
pocket12 = body.newObject("PartDesign::Pocket", "Pocket011")
pocket12.Profile = sketch15
pocket12.Length = 36

doc.recompute()
